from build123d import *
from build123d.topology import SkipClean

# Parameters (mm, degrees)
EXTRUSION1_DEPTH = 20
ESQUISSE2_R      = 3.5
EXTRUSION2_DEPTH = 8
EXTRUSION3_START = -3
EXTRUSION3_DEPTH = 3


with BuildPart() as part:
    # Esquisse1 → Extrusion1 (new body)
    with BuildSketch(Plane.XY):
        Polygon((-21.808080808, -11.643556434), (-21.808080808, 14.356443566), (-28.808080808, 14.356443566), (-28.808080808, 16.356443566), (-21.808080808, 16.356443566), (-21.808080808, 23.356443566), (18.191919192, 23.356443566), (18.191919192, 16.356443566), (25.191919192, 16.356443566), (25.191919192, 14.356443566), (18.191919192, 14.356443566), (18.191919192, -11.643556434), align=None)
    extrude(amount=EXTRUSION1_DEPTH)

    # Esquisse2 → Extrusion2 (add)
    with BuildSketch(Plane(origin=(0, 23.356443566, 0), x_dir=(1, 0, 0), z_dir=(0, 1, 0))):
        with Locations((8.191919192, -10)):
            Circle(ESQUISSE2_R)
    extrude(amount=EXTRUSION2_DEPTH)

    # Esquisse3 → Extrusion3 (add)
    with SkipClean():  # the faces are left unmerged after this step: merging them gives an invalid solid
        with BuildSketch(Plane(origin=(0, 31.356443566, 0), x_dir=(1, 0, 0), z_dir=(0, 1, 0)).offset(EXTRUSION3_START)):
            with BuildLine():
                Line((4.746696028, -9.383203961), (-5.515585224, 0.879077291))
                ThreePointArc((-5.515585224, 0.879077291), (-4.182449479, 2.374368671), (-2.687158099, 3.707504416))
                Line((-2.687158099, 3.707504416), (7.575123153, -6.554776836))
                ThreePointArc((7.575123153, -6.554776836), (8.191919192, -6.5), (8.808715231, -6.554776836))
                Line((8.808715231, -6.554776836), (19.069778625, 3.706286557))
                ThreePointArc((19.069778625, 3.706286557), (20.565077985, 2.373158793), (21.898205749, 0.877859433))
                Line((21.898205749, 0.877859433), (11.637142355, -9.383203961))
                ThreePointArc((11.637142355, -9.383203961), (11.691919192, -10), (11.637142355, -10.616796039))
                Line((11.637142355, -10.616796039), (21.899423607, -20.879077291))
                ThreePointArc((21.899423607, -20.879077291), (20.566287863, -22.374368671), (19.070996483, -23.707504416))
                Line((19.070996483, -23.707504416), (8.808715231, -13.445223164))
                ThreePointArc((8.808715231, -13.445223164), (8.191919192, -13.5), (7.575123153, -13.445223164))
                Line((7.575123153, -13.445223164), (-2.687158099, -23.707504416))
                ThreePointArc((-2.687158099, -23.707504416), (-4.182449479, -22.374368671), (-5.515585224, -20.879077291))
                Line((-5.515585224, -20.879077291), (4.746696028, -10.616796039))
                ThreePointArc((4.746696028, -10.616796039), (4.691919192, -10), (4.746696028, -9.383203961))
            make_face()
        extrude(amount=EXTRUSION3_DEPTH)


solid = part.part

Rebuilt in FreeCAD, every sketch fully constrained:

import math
import FreeCAD as App
import Part
import Sketcher

doc = App.newDocument("Part")
body = doc.addObject("PartDesign::Body", "Body")

# Sketch on XY plane
sketch1 = body.newObject("Sketcher::SketchObject", "Sketch")
sketch1.AttachmentSupport = (doc.getObject("XY_Plane"), [""])
sketch1.MapMode = "FlatFace"
sketch1.addGeometry(Part.LineSegment(App.Vector(-21.808081, 14.356444, 0), App.Vector(-21.808081, -11.643556, 0)), False)
sketch1.addGeometry(Part.LineSegment(App.Vector(-21.808081, -11.643556, 0), App.Vector(18.191919, -11.643556, 0)), False)
sketch1.addGeometry(Part.LineSegment(App.Vector(18.191919, -11.643556, 0), App.Vector(18.191919, 14.356444, 0)), False)
sketch1.addGeometry(Part.LineSegment(App.Vector(18.191919, 14.356444, 0), App.Vector(25.191919, 14.356444, 0)), False)
sketch1.addGeometry(Part.LineSegment(App.Vector(25.191919, 14.356444, 0), App.Vector(25.191919, 16.356444, 0)), False)
sketch1.addGeometry(Part.LineSegment(App.Vector(25.191919, 16.356444, 0), App.Vector(18.191919, 16.356444, 0)), False)
sketch1.addGeometry(Part.LineSegment(App.Vector(18.191919, 16.356444, 0), App.Vector(18.191919, 23.356444, 0)), False)
sketch1.addGeometry(Part.LineSegment(App.Vector(18.191919, 23.356444, 0), App.Vector(-21.808081, 23.356444, 0)), False)
sketch1.addGeometry(Part.LineSegment(App.Vector(-21.808081, 23.356444, 0), App.Vector(-21.808081, 16.356444, 0)), False)
sketch1.addGeometry(Part.LineSegment(App.Vector(-21.808081, 16.356444, 0), App.Vector(-28.808081, 16.356444, 0)), False)
sketch1.addGeometry(Part.LineSegment(App.Vector(-28.808081, 16.356444, 0), App.Vector(-28.808081, 14.356444, 0)), False)
sketch1.addGeometry(Part.LineSegment(App.Vector(-28.808081, 14.356444, 0), App.Vector(-21.808081, 14.356444, 0)), False)
sketch1.addConstraint(Sketcher.Constraint("Coincident", 0, 2, 1, 1))
sketch1.addConstraint(Sketcher.Constraint("Coincident", 1, 2, 2, 1))
sketch1.addConstraint(Sketcher.Constraint("Coincident", 2, 2, 3, 1))
sketch1.addConstraint(Sketcher.Constraint("Coincident", 3, 2, 4, 1))
sketch1.addConstraint(Sketcher.Constraint("Coincident", 4, 2, 5, 1))
sketch1.addConstraint(Sketcher.Constraint("Coincident", 5, 2, 6, 1))
sketch1.addConstraint(Sketcher.Constraint("Coincident", 6, 2, 7, 1))
sketch1.addConstraint(Sketcher.Constraint("Coincident", 7, 2, 8, 1))
sketch1.addConstraint(Sketcher.Constraint("Coincident", 8, 2, 9, 1))
sketch1.addConstraint(Sketcher.Constraint("Coincident", 9, 2, 10, 1))
sketch1.addConstraint(Sketcher.Constraint("Coincident", 10, 2, 11, 1))
sketch1.addConstraint(Sketcher.Constraint("Coincident", 11, 2, 0, 1))
sketch1.addConstraint(Sketcher.Constraint("Vertical", 0))
sketch1.addConstraint(Sketcher.Constraint("Horizontal", 1))
sketch1.addConstraint(Sketcher.Constraint("Vertical", 2))
sketch1.addConstraint(Sketcher.Constraint("Horizontal", 3))
sketch1.addConstraint(Sketcher.Constraint("Vertical", 4))
sketch1.addConstraint(Sketcher.Constraint("Horizontal", 5))
sketch1.addConstraint(Sketcher.Constraint("Vertical", 6))
sketch1.addConstraint(Sketcher.Constraint("Horizontal", 7))
sketch1.addConstraint(Sketcher.Constraint("Vertical", 8))
sketch1.addConstraint(Sketcher.Constraint("Horizontal", 9))
sketch1.addConstraint(Sketcher.Constraint("Vertical", 10))
sketch1.addConstraint(Sketcher.Constraint("Horizontal", 11))
sketch1.addConstraint(Sketcher.Constraint("Horizontal", 5, 2, 8, 2))
sketch1.addConstraint(Sketcher.Constraint("Horizontal", 3, 2, 10, 2))
sketch1.addConstraint(Sketcher.Constraint("Vertical", 2, 2, 5, 2))
sketch1.addConstraint(Sketcher.Constraint("Vertical", 0, 2, 7, 2))
sketch1.addConstraint(Sketcher.Constraint("Equal", 5, 9))
sketch1.addConstraint(Sketcher.Constraint("Equal", 11, 6))
sketch1.addConstraint(Sketcher.Constraint("DistanceX", 1, 1, 1, 2, 40.0))
sketch1.addConstraint(Sketcher.Constraint("DistanceX", 3, 1, 3, 2, 7.0))
sketch1.addConstraint(Sketcher.Constraint("DistanceY", 0, 2, 0, 1, 26.0))
sketch1.addConstraint(Sketcher.Constraint("DistanceY", 4, 1, 4, 2, 2.0))
sketch1.addConstraint(Sketcher.Constraint("DistanceX", 0, 2, -1, 1, 21.808081))
sketch1.addConstraint(Sketcher.Constraint("DistanceY", 0, 2, -1, 1, 11.643556))
pad1 = body.newObject("PartDesign::Pad", "Pad")
pad1.Profile = sketch1
pad1.Length = 20

# Sketch on XZ plane
sketch2 = body.newObject("Sketcher::SketchObject", "Sketch001")
sketch2.AttachmentSupport = (doc.getObject("XZ_Plane"), [""])
sketch2.MapMode = "FlatFace"
sketch2.AttachmentOffset = App.Placement(App.Vector(0, 0, -23.356444), App.Rotation())
sketch2.addGeometry(Part.Circle(App.Vector(8.191919, 10, 0), App.Vector(0, 0, 1), 3.5), False)
sketch2.addConstraint(Sketcher.Constraint("Diameter", 0, 7.0))
sketch2.addConstraint(Sketcher.Constraint("DistanceY", -1, 1, 0, 3, 10.0))
sketch2.addConstraint(Sketcher.Constraint("DistanceX", -1, 1, 0, 3, 8.191919))
pad2 = body.newObject("PartDesign::Pad", "Pad001")
pad2.Profile = sketch2
pad2.Length = 8
pad2.Reversed = True

# Sketch on XZ plane
sketch3 = body.newObject("Sketcher::SketchObject", "Sketch002")
sketch3.AttachmentSupport = (doc.getObject("XZ_Plane"), [""])
sketch3.MapMode = "FlatFace"
sketch3.AttachmentOffset = App.Placement(App.Vector(0, 0, -28.356444), App.Rotation())
sketch3.addGeometry(Part.LineSegment(App.Vector(-5.515585, -0.879077, 0), App.Vector(4.746696, 9.383204, 0)), False)
sketch3.addGeometry(Part.ArcOfCircle(Part.Circle(App.Vector(8.191919, 10, 0), App.Vector(0, 0, 1), 3.5), math.radians(169.849905), math.radians(190.150095)), False)
sketch3.addGeometry(Part.LineSegment(App.Vector(4.746696, 10.616796, 0), App.Vector(-5.515585, 20.879077, 0)), False)
sketch3.addGeometry(Part.ArcOfCircle(Part.Circle(App.Vector(8.191919, 10, 0), App.Vector(0, 0, 1), 17.5), math.radians(128.437572), math.radians(141.562428)), False)
sketch3.addGeometry(Part.LineSegment(App.Vector(-2.687158, 23.707504, 0), App.Vector(7.575123, 13.445223, 0)), False)
sketch3.addGeometry(Part.ArcOfCircle(Part.Circle(App.Vector(8.191919, 10, 0), App.Vector(0, 0, 1), 3.5), math.radians(79.849905), math.radians(100.150095)), False)
sketch3.addGeometry(Part.LineSegment(App.Vector(8.808715, 13.445223, 0), App.Vector(19.070996, 23.707504, 0)), False)
sketch3.addGeometry(Part.ArcOfCircle(Part.Circle(App.Vector(8.191919, 10, 0), App.Vector(0, 0, 1), 17.5), math.radians(38.437572), math.radians(51.562428)), False)
sketch3.addGeometry(Part.LineSegment(App.Vector(21.899424, 20.879077, 0), App.Vector(11.637142, 10.616796, 0)), False)
sketch3.addGeometry(Part.ArcOfCircle(Part.Circle(App.Vector(8.191919, 10, 0), App.Vector(0, 0, 1), 3.5), math.radians(-10.150096), math.radians(10.150096)), False)
sketch3.addGeometry(Part.LineSegment(App.Vector(11.637142, 9.383204, 0), App.Vector(21.898206, -0.877859, 0)), False)
sketch3.addGeometry(Part.ArcOfCircle(Part.Circle(App.Vector(8.191919, 10, 0), App.Vector(0, 0, 1), 17.498289), math.radians(-51.563072), math.radians(-38.436928)), False)
sketch3.addGeometry(Part.LineSegment(App.Vector(19.069779, -3.706287, 0), App.Vector(8.808715, 6.554777, 0)), False)
sketch3.addGeometry(Part.ArcOfCircle(Part.Circle(App.Vector(8.191919, 10, 0), App.Vector(0, 0, 1), 3.5), math.radians(-100.150095), math.radians(-79.849905)), False)
sketch3.addGeometry(Part.LineSegment(App.Vector(7.575123, 6.554777, 0), App.Vector(-2.687158, -3.707504, 0)), False)
sketch3.addGeometry(Part.ArcOfCircle(Part.Circle(App.Vector(8.191919, 10, 0), App.Vector(0, 0, 1), 17.5), math.radians(-141.562428), math.radians(-128.437572)), False)
sketch3.addConstraint(Sketcher.Constraint("Coincident", 0, 2, 1, 2))
sketch3.addConstraint(Sketcher.Constraint("Coincident", 1, 1, 2, 1))
sketch3.addConstraint(Sketcher.Constraint("Coincident", 2, 2, 3, 2))
sketch3.addConstraint(Sketcher.Constraint("Coincident", 3, 1, 4, 1))
sketch3.addConstraint(Sketcher.Constraint("Coincident", 4, 2, 5, 2))
sketch3.addConstraint(Sketcher.Constraint("Coincident", 5, 1, 6, 1))
sketch3.addConstraint(Sketcher.Constraint("Coincident", 6, 2, 7, 2))
sketch3.addConstraint(Sketcher.Constraint("Coincident", 7, 1, 8, 1))
sketch3.addConstraint(Sketcher.Constraint("Coincident", 8, 2, 9, 2))
sketch3.addConstraint(Sketcher.Constraint("Coincident", 9, 1, 10, 1))
sketch3.addConstraint(Sketcher.Constraint("Coincident", 10, 2, 11, 2))
sketch3.addConstraint(Sketcher.Constraint("Coincident", 11, 1, 12, 1))
sketch3.addConstraint(Sketcher.Constraint("Coincident", 12, 2, 13, 2))
sketch3.addConstraint(Sketcher.Constraint("Coincident", 13, 1, 14, 1))
sketch3.addConstraint(Sketcher.Constraint("Coincident", 14, 2, 15, 2))
sketch3.addConstraint(Sketcher.Constraint("Coincident", 15, 1, 0, 1))
sketch3.addConstraint(Sketcher.Constraint("Coincident", 3, 3, 1, 3))
sketch3.addConstraint(Sketcher.Constraint("Coincident", 5, 3, 1, 3))
sketch3.addConstraint(Sketcher.Constraint("Coincident", 7, 3, 1, 3))
sketch3.addConstraint(Sketcher.Constraint("Coincident", 9, 3, 1, 3))
sketch3.addConstraint(Sketcher.Constraint("Coincident", 11, 3, 1, 3))
sketch3.addConstraint(Sketcher.Constraint("Coincident", 13, 3, 1, 3))
sketch3.addConstraint(Sketcher.Constraint("Coincident", 15, 3, 1, 3))
sketch3.addConstraint(Sketcher.Constraint("Equal", 1, 5))
sketch3.addConstraint(Sketcher.Constraint("Equal", 3, 7))
sketch3.addConstraint(Sketcher.Constraint("Equal", 5, 9))
sketch3.addConstraint(Sketcher.Constraint("Equal", 9, 13))
sketch3.addConstraint(Sketcher.Constraint("Equal", 7, 15))
sketch3.addConstraint(Sketcher.Constraint("Perpendicular", 0, 2))
sketch3.addConstraint(Sketcher.Constraint("Parallel", 2, 4))
sketch3.addConstraint(Sketcher.Constraint("Perpendicular", 4, 6))
sketch3.addConstraint(Sketcher.Constraint("Parallel", 6, 8))
sketch3.addConstraint(Sketcher.Constraint("Perpendicular", 8, 10))
sketch3.addConstraint(Sketcher.Constraint("Parallel", 10, 12))
sketch3.addConstraint(Sketcher.Constraint("Perpendicular", 12, 14))
sketch3.addConstraint(Sketcher.Constraint("Horizontal", 4, 2, 5, 1))
sketch3.addConstraint(Sketcher.Constraint("Horizontal", 3, 1, 6, 2))
sketch3.addConstraint(Sketcher.Constraint("Horizontal", 2, 2, 7, 1))
sketch3.addConstraint(Sketcher.Constraint("Horizontal", 0, 2, 9, 1))
sketch3.addConstraint(Sketcher.Constraint("Horizontal", 12, 2, 13, 1))
sketch3.addConstraint(Sketcher.Constraint("Vertical", 0, 2, 1, 1))
sketch3.addConstraint(Sketcher.Constraint("Vertical", 5, 1, 12, 2))
sketch3.addConstraint(Sketcher.Constraint("Equal", 2, 4))
sketch3.addConstraint(Sketcher.Constraint("Radius", 1, 3.5))
sketch3.addConstraint(Sketcher.Constraint("Radius", 3, 17.5))
sketch3.addConstraint(Sketcher.Constraint("DistanceY", -1, 1, 1, 3, 10.0))
sketch3.addConstraint(Sketcher.Constraint("Radius", 11, 17.498289))
sketch3.addConstraint(Sketcher.Constraint("DistanceY", 0, 2, 3, 1, 14.3243))
sketch3.addConstraint(Sketcher.Constraint("DistanceX", -1, 1, 1, 3, 8.191919))
pad3 = body.newObject("PartDesign::Pad", "Pad002")
pad3.Profile = sketch3
pad3.Length = 3
pad3.Reversed = True

doc.recompute()
